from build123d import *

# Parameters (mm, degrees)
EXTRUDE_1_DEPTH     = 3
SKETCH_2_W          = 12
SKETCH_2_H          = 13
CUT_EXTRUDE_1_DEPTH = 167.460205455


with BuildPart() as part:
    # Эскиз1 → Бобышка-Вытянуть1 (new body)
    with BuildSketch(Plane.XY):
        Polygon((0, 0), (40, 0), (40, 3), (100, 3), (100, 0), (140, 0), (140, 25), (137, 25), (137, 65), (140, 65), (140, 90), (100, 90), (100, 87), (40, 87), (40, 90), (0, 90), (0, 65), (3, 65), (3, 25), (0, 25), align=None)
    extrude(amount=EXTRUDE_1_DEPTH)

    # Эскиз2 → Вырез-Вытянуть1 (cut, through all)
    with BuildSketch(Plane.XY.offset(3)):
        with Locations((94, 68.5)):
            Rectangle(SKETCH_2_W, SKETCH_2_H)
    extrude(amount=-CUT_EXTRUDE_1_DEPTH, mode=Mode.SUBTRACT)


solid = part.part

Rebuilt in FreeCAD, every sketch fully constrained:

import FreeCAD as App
import Part
import Sketcher

doc = App.newDocument("Part")
body = doc.addObject("PartDesign::Body", "Body")

# Sketch on XY plane
sketch1 = body.newObject("Sketcher::SketchObject", "Sketch")
sketch1.AttachmentSupport = (doc.getObject("XY_Plane"), [""])
sketch1.MapMode = "FlatFace"
sketch1.addGeometry([
    Part.LineSegment(App.Vector(0, 0, 0), App.Vector(40, 0, 0)),  # 0
    Part.LineSegment(App.Vector(40, 0, 0), App.Vector(40, 3, 0)),  # 1
    Part.LineSegment(App.Vector(40, 3, 0), App.Vector(100, 3, 0)),  # 2
    Part.LineSegment(App.Vector(100, 3, 0), App.Vector(100, 0, 0)),  # 3
    Part.LineSegment(App.Vector(100, 0, 0), App.Vector(140, 0, 0)),  # 4
    Part.LineSegment(App.Vector(140, 0, 0), App.Vector(140, 25, 0)),  # 5
    Part.LineSegment(App.Vector(140, 25, 0), App.Vector(137, 25, 0)),  # 6
    Part.LineSegment(App.Vector(137, 25, 0), App.Vector(137, 65, 0)),  # 7
    Part.LineSegment(App.Vector(137, 65, 0), App.Vector(140, 65, 0)),  # 8
    Part.LineSegment(App.Vector(140, 65, 0), App.Vector(140, 90, 0)),  # 9
    Part.LineSegment(App.Vector(140, 90, 0), App.Vector(100, 90, 0)),  # 10
    Part.LineSegment(App.Vector(100, 90, 0), App.Vector(100, 87, 0)),  # 11
    Part.LineSegment(App.Vector(100, 87, 0), App.Vector(40, 87, 0)),  # 12
    Part.LineSegment(App.Vector(40, 87, 0), App.Vector(40, 90, 0)),  # 13
    Part.LineSegment(App.Vector(40, 90, 0), App.Vector(0, 90, 0)),  # 14
    Part.LineSegment(App.Vector(0, 90, 0), App.Vector(0, 65, 0)),  # 15
    Part.LineSegment(App.Vector(0, 65, 0), App.Vector(3, 65, 0)),  # 16
    Part.LineSegment(App.Vector(3, 65, 0), App.Vector(3, 25, 0)),  # 17
    Part.LineSegment(App.Vector(3, 25, 0), App.Vector(0, 25, 0)),  # 18
    Part.LineSegment(App.Vector(0, 25, 0), App.Vector(0, 0, 0)),  # 19
], False)
sketch1.addConstraint([
    Sketcher.Constraint("Coincident", 0, 2, 1, 1),
    Sketcher.Constraint("Coincident", 1, 2, 2, 1),
    Sketcher.Constraint("Coincident", 2, 2, 3, 1),
    Sketcher.Constraint("Coincident", 3, 2, 4, 1),
    Sketcher.Constraint("Coincident", 4, 2, 5, 1),
    Sketcher.Constraint("Coincident", 5, 2, 6, 1),
    Sketcher.Constraint("Coincident", 6, 2, 7, 1),
    Sketcher.Constraint("Coincident", 7, 2, 8, 1),
    Sketcher.Constraint("Coincident", 8, 2, 9, 1),
    Sketcher.Constraint("Coincident", 9, 2, 10, 1),
    Sketcher.Constraint("Coincident", 10, 2, 11, 1),
    Sketcher.Constraint("Coincident", 11, 2, 12, 1),
    Sketcher.Constraint("Coincident", 12, 2, 13, 1),
    Sketcher.Constraint("Coincident", 13, 2, 14, 1),
    Sketcher.Constraint("Coincident", 14, 2, 15, 1),
    Sketcher.Constraint("Coincident", 15, 2, 16, 1),
    Sketcher.Constraint("Coincident", 16, 2, 17, 1),
    Sketcher.Constraint("Coincident", 17, 2, 18, 1),
    Sketcher.Constraint("Coincident", 18, 2, 19, 1),
    Sketcher.Constraint("Coincident", 19, 2, 0, 1),
    Sketcher.Constraint("Horizontal", 0),
    Sketcher.Constraint("Vertical", 1),
    Sketcher.Constraint("Horizontal", 2),
    Sketcher.Constraint("Vertical", 3),
    Sketcher.Constraint("Horizontal", 4),
    Sketcher.Constraint("Vertical", 5),
    Sketcher.Constraint("Horizontal", 6),
    Sketcher.Constraint("Vertical", 7),
    Sketcher.Constraint("Horizontal", 8),
    Sketcher.Constraint("Vertical", 9),
    Sketcher.Constraint("Horizontal", 10),
    Sketcher.Constraint("Vertical", 11),
    Sketcher.Constraint("Horizontal", 12),
    Sketcher.Constraint("Vertical", 13),
    Sketcher.Constraint("Horizontal", 14),
    Sketcher.Constraint("Vertical", 15),
    Sketcher.Constraint("Horizontal", 16),
    Sketcher.Constraint("Vertical", 17),
    Sketcher.Constraint("Horizontal", 18),
    Sketcher.Constraint("Vertical", 19),
    Sketcher.Constraint("Coincident", 19, 2, -1, 1),
    Sketcher.Constraint("PointOnObject", 3, 2, -1),
    Sketcher.Constraint("PointOnObject", 14, 2, -2),
    Sketcher.Constraint("Horizontal", 10, 2, 13, 2),
    Sketcher.Constraint("Horizontal", 8, 2, 15, 2),
    Sketcher.Constraint("Horizontal", 6, 2, 17, 2),
    Sketcher.Constraint("Vertical", 5, 2, 8, 2),
    Sketcher.Constraint("Vertical", 3, 2, 10, 2),
    Sketcher.Constraint("Vertical", 1, 2, 12, 2),
    Sketcher.Constraint("Equal", 0, 4),
    Sketcher.Constraint("Equal", 8, 16),
    Sketcher.Constraint("Equal", 18, 1),
    Sketcher.Constraint("Equal", 14, 7),
    Sketcher.Constraint("Equal", 5, 9),
    Sketcher.Constraint("Equal", 3, 11),
    Sketcher.Constraint("DistanceX", 0, 1, 0, 2, 40.0),
    Sketcher.Constraint("DistanceX", 2, 1, 2, 2, 60.0),
    Sketcher.Constraint("DistanceX", 6, 2, 6, 1, 3.0),
    Sketcher.Constraint("DistanceY", 5, 1, 5, 2, 25.0),
])
pad1 = body.newObject("PartDesign::Pad", "Pad")
pad1.Profile = sketch1
pad1.Length = 3

# Sketch on XY plane
sketch2 = body.newObject("Sketcher::SketchObject", "Sketch001")
sketch2.AttachmentSupport = (doc.getObject("XY_Plane"), [""])
sketch2.MapMode = "FlatFace"
sketch2.AttachmentOffset = App.Placement(App.Vector(0, 0, 3), App.Rotation())
sketch2.addGeometry([
    Part.LineSegment(App.Vector(88, 75, 0), App.Vector(88, 62, 0)),
    Part.LineSegment(App.Vector(88, 62, 0), App.Vector(100, 62, 0)),
    Part.LineSegment(App.Vector(100, 62, 0), App.Vector(100, 75, 0)),
    Part.LineSegment(App.Vector(100, 75, 0), App.Vector(88, 75, 0)),
], False)
sketch2.addConstraint([
    Sketcher.Constraint("Coincident", 0, 2, 1, 1),
    Sketcher.Constraint("Coincident", 1, 2, 2, 1),
    Sketcher.Constraint("Coincident", 2, 2, 3, 1),
    Sketcher.Constraint("Coincident", 3, 2, 0, 1),
    Sketcher.Constraint("Vertical", 0),
    Sketcher.Constraint("Horizontal", 1),
    Sketcher.Constraint("Vertical", 2),
    Sketcher.Constraint("Horizontal", 3),
    Sketcher.Constraint("DistanceX", 1, 1, 1, 2, 12.0),
    Sketcher.Constraint("DistanceY", 0, 2, 0, 1, 13.0),
    Sketcher.Constraint("DistanceX", -1, 1, 0, 2, 88.0),
    Sketcher.Constraint("DistanceY", -1, 1, 0, 2, 62.0),
])
pocket1 = body.newObject("PartDesign::Pocket", "Pocket")
pocket1.Profile = sketch2
pocket1.Type = "ThroughAll"

doc.recompute()
